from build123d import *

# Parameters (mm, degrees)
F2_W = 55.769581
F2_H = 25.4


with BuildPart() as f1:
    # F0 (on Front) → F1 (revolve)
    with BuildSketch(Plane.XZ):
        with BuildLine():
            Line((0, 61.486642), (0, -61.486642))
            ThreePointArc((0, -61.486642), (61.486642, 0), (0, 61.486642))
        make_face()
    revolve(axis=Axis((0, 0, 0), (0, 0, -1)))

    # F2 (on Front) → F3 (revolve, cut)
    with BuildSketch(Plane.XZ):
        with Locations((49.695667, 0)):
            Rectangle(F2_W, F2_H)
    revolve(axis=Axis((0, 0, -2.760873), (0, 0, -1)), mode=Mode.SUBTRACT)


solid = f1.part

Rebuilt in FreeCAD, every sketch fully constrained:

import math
import FreeCAD as App
import Part
import Sketcher

V = App.Vector
Q = App.Units.Quantity

doc = App.newDocument("Part")
body = doc.addObject("PartDesign::Body", "Body")

sketch1 = body.newObject("Sketcher::SketchObject", "Sketch")
sketch1.AttachmentSupport = (doc.getObject("XZ_Plane"), [""])
sketch1.MapMode = "FlatFace"
sketch1.addGeometry([
    Part.LineSegment(V(0, 61.486642, 0), V(0, -61.486642, 0)),
    Part.ArcOfCircle(Part.Circle(V(0, 0, 0), V(0, 0, 1), 61.486642), math.radians(-90), math.radians(90)),
], False)
sketch1.addConstraint([
    Sketcher.Constraint("Coincident", 0, 1, 1, 2),
    Sketcher.Constraint("Coincident", 1, 1, 0, 2),
    Sketcher.Constraint("Vertical", 0),
    Sketcher.Constraint("Coincident", 1, 3, -1, 1),
    Sketcher.Constraint("PointOnObject", 0, 1, -2),
    Sketcher.Constraint("Radius", 1, Q("61.486642 mm")),
])
revolution = body.newObject("PartDesign::Revolution", "Revolution")
revolution.Profile = sketch1
revolution.ReferenceAxis = (sketch1, ["V_Axis"])
revolution.Angle = 360

sketch2 = body.newObject("Sketcher::SketchObject", "Sketch001")
sketch2.AttachmentSupport = (doc.getObject("XZ_Plane"), [""])
sketch2.MapMode = "FlatFace"
sketch2.addGeometry([
    Part.LineSegment(V(21.810876, 12.7, 0), V(21.810876, -12.7, 0)),
    Part.LineSegment(V(21.810876, -12.7, 0), V(77.580457, -12.7, 0)),
    Part.LineSegment(V(77.580457, -12.7, 0), V(77.580457, 12.7, 0)),
    Part.LineSegment(V(77.580457, 12.7, 0), V(21.810876, 12.7, 0)),
], False)
sketch2.addConstraint([
    Sketcher.Constraint("Coincident", 0, 2, 1, 1),
    Sketcher.Constraint("Coincident", 1, 2, 2, 1),
    Sketcher.Constraint("Coincident", 2, 2, 3, 1),
    Sketcher.Constraint("Coincident", 3, 2, 0, 1),
    Sketcher.Constraint("Vertical", 0),
    Sketcher.Constraint("Horizontal", 1),
    Sketcher.Constraint("Vertical", 2),
    Sketcher.Constraint("Horizontal", 3),
    Sketcher.Constraint("DistanceY", 0, 2, 0, 1, Q("1 in")),
    Sketcher.Constraint("DistanceY", 0, 2, -1, 1, Q("0.5 in")),
    Sketcher.Constraint("DistanceX", 1, 1, 1, 2, Q("55.769581 mm")),
    Sketcher.Constraint("DistanceX", -1, 1, 0, 2, Q("21.810876 mm")),
])
groove = body.newObject("PartDesign::Groove", "Groove")
groove.Profile = sketch2
groove.ReferenceAxis = (sketch2, ["V_Axis"])
groove.Angle = 360

doc.recompute()
